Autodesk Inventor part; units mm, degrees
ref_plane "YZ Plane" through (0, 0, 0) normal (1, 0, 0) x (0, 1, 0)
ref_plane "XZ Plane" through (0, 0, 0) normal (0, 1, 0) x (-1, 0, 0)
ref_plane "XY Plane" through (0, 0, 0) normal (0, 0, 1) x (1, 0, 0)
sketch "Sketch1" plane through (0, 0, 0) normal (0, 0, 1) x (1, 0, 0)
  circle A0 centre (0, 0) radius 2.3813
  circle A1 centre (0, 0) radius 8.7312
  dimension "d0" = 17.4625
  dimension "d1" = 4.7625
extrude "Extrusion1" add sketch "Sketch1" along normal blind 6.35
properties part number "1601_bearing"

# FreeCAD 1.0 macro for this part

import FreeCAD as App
import Part
import Sketcher

V = App.Vector
Q = App.Units.Quantity

doc = App.newDocument("Part")
body = doc.addObject("PartDesign::Body", "Body")

# Sketch on XY plane
sketch1 = body.newObject("Sketcher::SketchObject", "Sketch")
sketch1.AttachmentSupport = (doc.getObject("XY_Plane"), [""])
sketch1.MapMode = "FlatFace"
sketch1.addGeometry([
    Part.Circle(V(0, 0, 0), V(0, 0, 1), 8.7312),
    Part.Circle(V(0, 0, 0), V(0, 0, 1), 2.3813),
], False)
sketch1.addConstraint([
    Sketcher.Constraint("Coincident", 0, 3, -1, 1),
    Sketcher.Constraint("Coincident", 1, 3, -1, 1),
    Sketcher.Constraint("Diameter", 0, Q("0.6875 in")),
    Sketcher.Constraint("Diameter", 1, Q("0.1875 in")),
])
pad1 = body.newObject("PartDesign::Pad", "Pad")
pad1.Profile = sketch1
pad1.Length = Q("0.25 in")

doc.recompute()
